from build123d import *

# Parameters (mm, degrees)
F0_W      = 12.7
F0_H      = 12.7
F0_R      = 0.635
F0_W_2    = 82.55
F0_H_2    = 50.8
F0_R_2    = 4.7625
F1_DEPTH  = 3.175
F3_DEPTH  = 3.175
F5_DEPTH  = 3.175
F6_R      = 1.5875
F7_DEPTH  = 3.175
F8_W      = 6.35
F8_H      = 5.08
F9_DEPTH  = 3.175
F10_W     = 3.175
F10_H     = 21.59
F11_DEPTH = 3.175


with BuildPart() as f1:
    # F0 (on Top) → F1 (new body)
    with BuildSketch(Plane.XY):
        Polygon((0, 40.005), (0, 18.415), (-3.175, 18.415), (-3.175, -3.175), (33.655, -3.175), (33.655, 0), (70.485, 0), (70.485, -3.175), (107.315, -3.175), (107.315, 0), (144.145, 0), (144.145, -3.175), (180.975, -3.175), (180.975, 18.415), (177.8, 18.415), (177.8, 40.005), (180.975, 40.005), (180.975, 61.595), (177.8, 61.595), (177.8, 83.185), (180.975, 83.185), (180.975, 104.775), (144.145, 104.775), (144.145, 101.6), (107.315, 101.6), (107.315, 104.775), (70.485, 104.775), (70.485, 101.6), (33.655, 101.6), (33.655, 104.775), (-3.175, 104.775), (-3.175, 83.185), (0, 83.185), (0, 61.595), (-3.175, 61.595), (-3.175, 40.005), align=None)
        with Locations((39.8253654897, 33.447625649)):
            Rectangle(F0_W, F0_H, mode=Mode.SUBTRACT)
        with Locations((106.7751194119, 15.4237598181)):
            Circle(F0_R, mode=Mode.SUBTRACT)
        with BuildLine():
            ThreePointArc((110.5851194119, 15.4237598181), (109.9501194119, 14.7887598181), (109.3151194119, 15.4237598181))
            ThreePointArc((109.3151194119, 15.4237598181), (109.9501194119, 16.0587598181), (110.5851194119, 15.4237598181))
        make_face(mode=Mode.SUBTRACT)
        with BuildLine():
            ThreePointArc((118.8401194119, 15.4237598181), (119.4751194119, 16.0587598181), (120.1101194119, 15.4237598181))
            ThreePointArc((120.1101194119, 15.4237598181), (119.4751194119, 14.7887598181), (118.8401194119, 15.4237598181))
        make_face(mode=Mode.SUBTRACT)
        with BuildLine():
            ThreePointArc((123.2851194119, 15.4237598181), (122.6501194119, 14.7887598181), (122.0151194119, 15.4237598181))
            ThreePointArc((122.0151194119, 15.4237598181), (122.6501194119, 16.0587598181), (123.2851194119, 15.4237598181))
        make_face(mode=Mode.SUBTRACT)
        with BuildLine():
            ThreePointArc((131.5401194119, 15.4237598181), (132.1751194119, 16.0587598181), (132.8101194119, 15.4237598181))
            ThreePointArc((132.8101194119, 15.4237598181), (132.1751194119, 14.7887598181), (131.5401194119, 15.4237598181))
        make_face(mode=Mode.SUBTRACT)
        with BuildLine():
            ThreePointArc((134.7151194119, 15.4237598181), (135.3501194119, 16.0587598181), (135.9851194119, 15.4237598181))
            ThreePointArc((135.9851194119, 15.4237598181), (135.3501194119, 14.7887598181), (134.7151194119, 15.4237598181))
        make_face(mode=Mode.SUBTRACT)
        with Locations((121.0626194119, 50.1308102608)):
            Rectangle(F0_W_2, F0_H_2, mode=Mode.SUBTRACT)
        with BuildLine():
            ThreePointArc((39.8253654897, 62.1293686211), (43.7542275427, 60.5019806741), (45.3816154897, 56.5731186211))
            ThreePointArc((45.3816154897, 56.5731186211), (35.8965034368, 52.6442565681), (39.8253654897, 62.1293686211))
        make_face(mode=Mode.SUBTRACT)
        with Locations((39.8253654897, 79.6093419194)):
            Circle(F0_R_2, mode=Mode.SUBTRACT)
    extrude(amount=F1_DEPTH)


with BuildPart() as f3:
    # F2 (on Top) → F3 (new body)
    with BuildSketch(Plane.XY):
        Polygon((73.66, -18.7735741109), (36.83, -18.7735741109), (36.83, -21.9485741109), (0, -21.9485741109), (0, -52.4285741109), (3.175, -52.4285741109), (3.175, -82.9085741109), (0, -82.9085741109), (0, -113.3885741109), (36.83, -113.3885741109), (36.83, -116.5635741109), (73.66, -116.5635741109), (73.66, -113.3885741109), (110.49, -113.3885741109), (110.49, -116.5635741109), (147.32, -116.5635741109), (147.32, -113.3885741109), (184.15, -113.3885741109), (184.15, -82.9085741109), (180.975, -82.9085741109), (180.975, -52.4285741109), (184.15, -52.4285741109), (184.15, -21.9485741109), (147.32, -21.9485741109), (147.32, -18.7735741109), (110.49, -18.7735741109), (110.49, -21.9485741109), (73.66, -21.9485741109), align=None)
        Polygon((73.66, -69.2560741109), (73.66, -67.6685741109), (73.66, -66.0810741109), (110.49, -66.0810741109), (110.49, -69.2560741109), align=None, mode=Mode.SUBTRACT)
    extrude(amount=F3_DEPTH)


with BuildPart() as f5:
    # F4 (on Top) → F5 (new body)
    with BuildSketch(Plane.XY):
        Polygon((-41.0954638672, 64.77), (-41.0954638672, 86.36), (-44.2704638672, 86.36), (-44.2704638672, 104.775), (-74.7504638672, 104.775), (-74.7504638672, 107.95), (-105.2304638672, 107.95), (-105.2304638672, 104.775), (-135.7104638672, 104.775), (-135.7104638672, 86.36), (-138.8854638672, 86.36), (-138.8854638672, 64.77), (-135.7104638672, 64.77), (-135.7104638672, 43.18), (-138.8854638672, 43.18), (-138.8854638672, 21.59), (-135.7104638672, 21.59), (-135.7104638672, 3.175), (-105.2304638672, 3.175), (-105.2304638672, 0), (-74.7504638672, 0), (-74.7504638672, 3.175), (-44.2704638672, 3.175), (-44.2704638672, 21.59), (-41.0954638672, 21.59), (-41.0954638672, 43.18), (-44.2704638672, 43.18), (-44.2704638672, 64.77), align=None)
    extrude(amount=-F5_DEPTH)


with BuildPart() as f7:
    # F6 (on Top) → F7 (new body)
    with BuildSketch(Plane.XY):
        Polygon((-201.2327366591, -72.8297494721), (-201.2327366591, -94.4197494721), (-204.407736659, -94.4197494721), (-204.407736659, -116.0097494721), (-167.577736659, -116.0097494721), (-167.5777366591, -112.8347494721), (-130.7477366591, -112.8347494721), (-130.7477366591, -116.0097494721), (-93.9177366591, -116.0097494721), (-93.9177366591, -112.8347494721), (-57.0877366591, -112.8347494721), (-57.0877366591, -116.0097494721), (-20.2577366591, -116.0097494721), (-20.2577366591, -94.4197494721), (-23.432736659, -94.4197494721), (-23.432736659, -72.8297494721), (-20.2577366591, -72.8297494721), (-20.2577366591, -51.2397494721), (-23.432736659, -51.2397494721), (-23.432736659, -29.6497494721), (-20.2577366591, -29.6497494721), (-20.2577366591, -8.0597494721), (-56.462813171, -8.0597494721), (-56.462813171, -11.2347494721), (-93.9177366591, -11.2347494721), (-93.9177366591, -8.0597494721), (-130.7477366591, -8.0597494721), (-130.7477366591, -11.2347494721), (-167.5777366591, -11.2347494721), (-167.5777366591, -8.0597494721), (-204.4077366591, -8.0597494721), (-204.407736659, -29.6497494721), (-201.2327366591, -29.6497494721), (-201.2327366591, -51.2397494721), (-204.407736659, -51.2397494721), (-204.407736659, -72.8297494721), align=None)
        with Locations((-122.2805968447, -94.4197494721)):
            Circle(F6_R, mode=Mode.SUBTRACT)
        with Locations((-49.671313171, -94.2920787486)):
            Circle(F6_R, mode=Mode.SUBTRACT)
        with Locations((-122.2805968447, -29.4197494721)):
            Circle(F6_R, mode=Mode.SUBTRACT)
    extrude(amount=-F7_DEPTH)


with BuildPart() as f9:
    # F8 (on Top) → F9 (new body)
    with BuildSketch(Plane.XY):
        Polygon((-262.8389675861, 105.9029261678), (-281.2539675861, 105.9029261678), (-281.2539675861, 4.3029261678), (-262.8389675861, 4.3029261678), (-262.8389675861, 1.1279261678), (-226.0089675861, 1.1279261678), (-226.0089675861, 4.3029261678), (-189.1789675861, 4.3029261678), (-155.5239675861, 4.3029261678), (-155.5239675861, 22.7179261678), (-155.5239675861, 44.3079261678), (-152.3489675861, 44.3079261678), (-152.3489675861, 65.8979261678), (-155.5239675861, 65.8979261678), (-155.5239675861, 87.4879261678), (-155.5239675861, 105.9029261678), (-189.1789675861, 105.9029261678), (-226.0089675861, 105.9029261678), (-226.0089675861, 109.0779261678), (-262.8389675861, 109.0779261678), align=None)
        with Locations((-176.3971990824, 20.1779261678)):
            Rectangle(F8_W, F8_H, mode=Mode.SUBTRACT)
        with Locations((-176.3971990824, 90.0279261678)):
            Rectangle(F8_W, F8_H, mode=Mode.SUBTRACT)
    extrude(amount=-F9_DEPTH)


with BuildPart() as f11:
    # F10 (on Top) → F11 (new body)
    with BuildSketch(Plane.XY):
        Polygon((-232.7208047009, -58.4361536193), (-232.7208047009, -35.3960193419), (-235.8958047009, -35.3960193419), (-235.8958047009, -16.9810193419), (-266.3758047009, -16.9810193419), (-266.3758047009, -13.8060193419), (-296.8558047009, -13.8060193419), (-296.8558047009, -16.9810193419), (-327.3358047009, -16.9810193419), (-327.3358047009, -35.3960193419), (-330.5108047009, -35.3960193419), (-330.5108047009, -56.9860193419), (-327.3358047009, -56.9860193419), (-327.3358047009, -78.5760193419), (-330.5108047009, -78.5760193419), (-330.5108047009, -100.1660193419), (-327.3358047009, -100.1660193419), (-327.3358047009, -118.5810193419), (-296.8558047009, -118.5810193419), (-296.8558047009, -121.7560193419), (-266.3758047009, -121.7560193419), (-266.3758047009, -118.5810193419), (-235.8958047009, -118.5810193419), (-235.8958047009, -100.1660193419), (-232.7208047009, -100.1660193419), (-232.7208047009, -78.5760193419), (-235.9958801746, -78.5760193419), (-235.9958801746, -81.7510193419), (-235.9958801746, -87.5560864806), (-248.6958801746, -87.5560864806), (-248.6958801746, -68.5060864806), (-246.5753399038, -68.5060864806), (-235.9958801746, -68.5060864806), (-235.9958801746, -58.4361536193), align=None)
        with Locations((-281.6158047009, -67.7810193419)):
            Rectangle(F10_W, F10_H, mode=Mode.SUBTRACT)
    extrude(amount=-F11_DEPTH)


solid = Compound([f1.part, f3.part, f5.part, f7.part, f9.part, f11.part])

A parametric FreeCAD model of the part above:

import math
import FreeCAD as App
import Part
import Sketcher
from FreeCAD import Vector
Q = App.Units.Quantity


def add_polygon(sketch, points):
    """Adds a closed chain of lines whose ends are joined by coincident constraints."""
    first, n = sketch.GeometryCount, len(points)
    for a, b in zip(points, points[1:] + points[:1]):
        sketch.addGeometry(Part.LineSegment(App.Vector(*a, 0), App.Vector(*b, 0)), False)
    for i in range(n):
        sketch.addConstraint(Sketcher.Constraint("Coincident", first + i, 2, first + (i + 1) % n, 1))

doc = App.newDocument("Part")
params = doc.addObject("Spreadsheet::Sheet", "Params")
for row, (alias, value) in enumerate([
    ("sketch1_diameter", "0.05 in"),
    ("sketch1_height", "2 in"),
    ("sketch1_diameter2", "0.375 in"),
    ("sketch1_width", "0.5 in"),
    ("sketch1_radius", "0.21875 in"),
    ("pad1_length", "0.125 in"),
    ("sketch2_height", "1.2 in"),
    ("sketch2_width", "1.45 in"),
    ("sketch2_width2", "0.125 in"),
    ("pad2_length", "0.125 in"),
    ("sketch3_width", "1.2 in"),
    ("sketch3_height", "0.85 in"),
    ("sketch3_width2", "0.125 in"),
    ("pad3_length", "0.125 in"),
    ("sketch4_diameter", "0.125 in"),
    ("sketch4_width", "1.45 in"),
    ("sketch4_height", "0.85 in"),
    ("sketch4_width2", "0.125 in"),
    ("pad4_length", "0.125 in"),
    ("sketch5_height", "4 in"),
    ("sketch5_height2", "0.2 in"),
    ("sketch5_width", "1.45 in"),
    ("sketch5_width2", "0.25 in"),
    ("sketch5_height3", "0.85 in"),
    ("pad5_length", "0.125 in"),
    ("sketch6_width", "1.2 in"),
    ("sketch6_width2", "0.5 in"),
    ("sketch6_height", "0.85 in"),
    ("sketch6_height2", "0.75 in"),
    ("sketch6_width3", "0.125 in"),
    ("pad6_length", "0.125 in"),
], start=1):
    params.set(f"A{row}", alias)
    params.set(f"B{row}", "=" + value)
    params.setAlias(f"B{row}", alias)

body = doc.addObject("PartDesign::Body", "Body")

# Sketch on XY plane
sketch1 = body.newObject("Sketcher::SketchObject", "Sketch")
sketch1.AttachmentSupport = (doc.getObject("XY_Plane"), [""])
sketch1.MapMode = "FlatFace"
add_polygon(sketch1, [(0, 40), (0, 18.4), (-3.2, 18.4), (-3.2, -3.2), (33.7, -3.2), (33.7, 0), (70.5, 0), (70.5, -3.2), (107.3, -3.2), (107.3, 0), (144.1, 0), (144.1, -3.2), (181, -3.2), (181, 18.4), (177.8, 18.4), (177.8, 40), (181, 40), (181, 61.6), (177.8, 61.6), (177.8, 83.2), (181, 83.2), (181, 104.8), (144.1, 104.8), (144.1, 101.6), (107.3, 101.6), (107.3, 104.8), (70.5, 104.8), (70.5, 101.6), (33.7, 101.6), (33.7, 104.8), (-3.2, 104.8), (-3.2, 83.2), (0, 83.2), (0, 61.6), (-3.2, 61.6), (-3.2, 40)])  # lines 0-35
add_polygon(sketch1, [(46.2, 27.1), (33.5, 27.1), (33.5, 39.8), (46.2, 39.8)])  # lines 36-39
sketch1.addGeometry(Part.Circle(Vector(106.8, 15.4, 0), Vector(0, 0, 1), 0.6), False)  # 40
sketch1.addGeometry(Part.Circle(Vector(110, 15.4, 0), Vector(0, 0, 1), 0.6), False)  # 41
sketch1.addGeometry(Part.Circle(Vector(119.5, 15.4, 0), Vector(0, 0, 1), 0.6), False)  # 42
sketch1.addGeometry(Part.Circle(Vector(122.7, 15.4, 0), Vector(0, 0, 1), 0.6), False)  # 43
sketch1.addGeometry(Part.Circle(Vector(132.2, 15.4, 0), Vector(0, 0, 1), 0.6), False)  # 44
sketch1.addGeometry(Part.Circle(Vector(135.4, 15.4, 0), Vector(0, 0, 1), 0.6), False)  # 45
sketch1.addGeometry(Part.ArcOfCircle(Part.Circle(Vector(39.8, 56.6, 0), Vector(0, 0, 1), 5.6), math.radians(90), math.radians(360)), False)  # 46
sketch1.addGeometry(Part.ArcOfCircle(Part.Circle(Vector(39.8, 56.6, 0), Vector(0, 0, 1), 5.6), math.radians(0), math.radians(90)), False)  # 47
sketch1.addGeometry(Part.Circle(Vector(39.8, 79.6, 0), Vector(0, 0, 1), 4.8), False)  # 48
add_polygon(sketch1, [(162.3, 24.7), (79.8, 24.7), (79.8, 75.5), (162.3, 75.5)])  # lines 49-52
sketch1.addConstraint(Sketcher.Constraint("Tangent", 46, 1, 47, 2))
sketch1.addConstraint(Sketcher.Constraint("Coincident", 47, 1, 46, 2))
sketch1.addConstraint(Sketcher.Constraint("Vertical", 0))
sketch1.addConstraint(Sketcher.Constraint("Horizontal", 1))
sketch1.addConstraint(Sketcher.Constraint("Vertical", 2))
sketch1.addConstraint(Sketcher.Constraint("Horizontal", 3))
sketch1.addConstraint(Sketcher.Constraint("Vertical", 4))
sketch1.addConstraint(Sketcher.Constraint("Horizontal", 5))
sketch1.addConstraint(Sketcher.Constraint("Vertical", 6))
sketch1.addConstraint(Sketcher.Constraint("Horizontal", 7))
sketch1.addConstraint(Sketcher.Constraint("Vertical", 8))
sketch1.addConstraint(Sketcher.Constraint("Horizontal", 9))
sketch1.addConstraint(Sketcher.Constraint("Vertical", 10))
sketch1.addConstraint(Sketcher.Constraint("Horizontal", 11))
sketch1.addConstraint(Sketcher.Constraint("Vertical", 12))
sketch1.addConstraint(Sketcher.Constraint("Horizontal", 13))
sketch1.addConstraint(Sketcher.Constraint("Vertical", 14))
sketch1.addConstraint(Sketcher.Constraint("Horizontal", 15))
sketch1.addConstraint(Sketcher.Constraint("Vertical", 16))
sketch1.addConstraint(Sketcher.Constraint("Horizontal", 17))
sketch1.addConstraint(Sketcher.Constraint("Vertical", 18))
sketch1.addConstraint(Sketcher.Constraint("Horizontal", 19))
sketch1.addConstraint(Sketcher.Constraint("Vertical", 20))
sketch1.addConstraint(Sketcher.Constraint("Horizontal", 21))
sketch1.addConstraint(Sketcher.Constraint("Vertical", 22))
sketch1.addConstraint(Sketcher.Constraint("Horizontal", 23))
sketch1.addConstraint(Sketcher.Constraint("Vertical", 24))
sketch1.addConstraint(Sketcher.Constraint("Horizontal", 25))
sketch1.addConstraint(Sketcher.Constraint("Vertical", 26))
sketch1.addConstraint(Sketcher.Constraint("Horizontal", 27))
sketch1.addConstraint(Sketcher.Constraint("Vertical", 28))
sketch1.addConstraint(Sketcher.Constraint("Horizontal", 29))
sketch1.addConstraint(Sketcher.Constraint("Vertical", 30))
sketch1.addConstraint(Sketcher.Constraint("Horizontal", 31))
sketch1.addConstraint(Sketcher.Constraint("Vertical", 32))
sketch1.addConstraint(Sketcher.Constraint("Horizontal", 33))
sketch1.addConstraint(Sketcher.Constraint("Vertical", 34))
sketch1.addConstraint(Sketcher.Constraint("Horizontal", 35))
sketch1.addConstraint(Sketcher.Constraint("Horizontal", 36))
sketch1.addConstraint(Sketcher.Constraint("Vertical", 37))
sketch1.addConstraint(Sketcher.Constraint("Horizontal", 38))
sketch1.addConstraint(Sketcher.Constraint("Vertical", 39))
sketch1.addConstraint(Sketcher.Constraint("Horizontal", 49))
sketch1.addConstraint(Sketcher.Constraint("Vertical", 50))
sketch1.addConstraint(Sketcher.Constraint("Horizontal", 51))
sketch1.addConstraint(Sketcher.Constraint("Vertical", 52))
sketch1.addConstraint(Sketcher.Constraint("Equal", 40, 41))
sketch1.addConstraint(Sketcher.Constraint("Equal", 41, 42))
sketch1.addConstraint(Sketcher.Constraint("Equal", 42, 43))
sketch1.addConstraint(Sketcher.Constraint("Equal", 43, 44))
sketch1.addConstraint(Sketcher.Constraint("Equal", 44, 45))
sketch1.addConstraint(Sketcher.Constraint("PointOnObject", 0, 2, -2))
sketch1.addConstraint(Sketcher.Constraint("PointOnObject", 4, 2, -1))
sketch1.addConstraint(Sketcher.Constraint("PointOnObject", 8, 2, -1))
sketch1.addConstraint(Sketcher.Constraint("PointOnObject", 31, 2, -2))
sketch1.addConstraint(Sketcher.Constraint("Horizontal", 40, 3, 41, 3))
sketch1.addConstraint(Sketcher.Constraint("Horizontal", 41, 3, 42, 3))
sketch1.addConstraint(Sketcher.Constraint("Horizontal", 42, 3, 43, 3))
sketch1.addConstraint(Sketcher.Constraint("Horizontal", 43, 3, 44, 3))
sketch1.addConstraint(Sketcher.Constraint("Horizontal", 44, 3, 45, 3))
sketch1.addConstraint(Sketcher.Constraint("Horizontal", 3, 2, 6, 2))
sketch1.addConstraint(Sketcher.Constraint("Horizontal", 7, 2, 10, 2))
sketch1.addConstraint(Sketcher.Constraint("Horizontal", 1, 2, 12, 2))
sketch1.addConstraint(Sketcher.Constraint("Horizontal", 21, 2, 24, 2))
sketch1.addConstraint(Sketcher.Constraint("Horizontal", 23, 2, 26, 2))
sketch1.addConstraint(Sketcher.Constraint("Horizontal", 25, 2, 28, 2))
sketch1.addConstraint(Sketcher.Constraint("Horizontal", 19, 2, 30, 2))
sketch1.addConstraint(Sketcher.Constraint("Horizontal", 17, 2, 32, 2))
sketch1.addConstraint(Sketcher.Constraint("Horizontal", 15, 2, 34, 2))
sketch1.addConstraint(Sketcher.Constraint("Horizontal", 46, 3, 47, 1))
sketch1.addConstraint(Sketcher.Constraint("Vertical", 47, 3, 48, 3))
sketch1.addConstraint(Sketcher.Constraint("Vertical", 12, 2, 15, 2))
sketch1.addConstraint(Sketcher.Constraint("Vertical", 14, 2, 17, 2))
sketch1.addConstraint(Sketcher.Constraint("Vertical", 16, 2, 19, 2))
sketch1.addConstraint(Sketcher.Constraint("Vertical", 10, 2, 21, 2))
sketch1.addConstraint(Sketcher.Constraint("Vertical", 8, 2, 23, 2))
sketch1.addConstraint(Sketcher.Constraint("Vertical", 6, 2, 25, 2))
sketch1.addConstraint(Sketcher.Constraint("Vertical", 4, 2, 27, 2))
sketch1.addConstraint(Sketcher.Constraint("Vertical", 2, 2, 29, 2))
sketch1.addConstraint(Sketcher.Constraint("Vertical", 30, 2, 33, 2))
sketch1.addConstraint(Sketcher.Constraint("Vertical", 48, 3, 46, 1))
sketch1.addConstraint(Sketcher.Constraint("Equal", 3, 5))
sketch1.addConstraint(Sketcher.Constraint("Equal", 5, 7))
sketch1.addConstraint(Sketcher.Constraint("Equal", 7, 9))
sketch1.addConstraint(Sketcher.Constraint("Equal", 9, 11))
sketch1.addConstraint(Sketcher.Constraint("Equal", 1, 13))
sketch1.addConstraint(Sketcher.Constraint("Equal", 0, 2))
sketch1.addConstraint(Sketcher.Constraint("Equal", 35, 4))
sketch1.addConstraint(Sketcher.Constraint("Equal", 14, 16))
sketch1.addConstraint(Sketcher.Constraint("Equal", 16, 18))
sketch1.addConstraint(Sketcher.Constraint("Equal", 18, 20))
sketch1.addConstraint(Sketcher.Constraint("Equal", 10, 22))
sketch1.addConstraint(Sketcher.Constraint("Equal", 38, 37))
sketch1.addConstraint(Sketcher.Constraint("Diameter", 40, Q("0.05 in")))
sketch1.addConstraint(Sketcher.Constraint("DistanceY", 50, 1, 50, 2, Q("2 in")))
sketch1.addConstraint(Sketcher.Constraint("Diameter", 48, Q("0.375 in")))
sketch1.addConstraint(Sketcher.Constraint("DistanceX", 36, 2, 36, 1, Q("0.5 in")))
sketch1.addConstraint(Sketcher.Constraint("DistanceX", -1, 1, 13, 2, Q("7 in")))
sketch1.addConstraint(Sketcher.Constraint("DistanceY", -1, 1, 22, 2, Q("4 in")))
sketch1.addConstraint(Sketcher.Constraint("Radius", 46, Q("0.21875 in")))
sketch1.addConstraint(Sketcher.Constraint("DistanceX", 40, 3, 44, 3, Q("1 in")))
sketch1.addConstraint(Sketcher.Constraint("DistanceX", 41, 3, 45, 3, Q("1 in")))
sketch1.addConstraint(Sketcher.Constraint("DistanceX", 3, 1, 3, 2, Q("1.45 in")))
sketch1.addConstraint(Sketcher.Constraint("DistanceX", 49, 2, 49, 1, Q("3.25 in")))
sketch1.addConstraint(Sketcher.Constraint("DistanceX", 40, 3, 42, 3, Q("0.5 in")))
sketch1.addConstraint(Sketcher.Constraint("DistanceX", 41, 3, 43, 3, Q("0.5 in")))
sketch1.addConstraint(Sketcher.Constraint("DistanceX", 36, 2, 46, 3, Q("0.25 in")))
sketch1.addConstraint(Sketcher.Constraint("DistanceX", 40, 3, 41, 3, Q("0.125 in")))
sketch1.addConstraint(Sketcher.Constraint("DistanceX", 49, 2, 40, 3, Q("1.0625 in")))
sketch1.addConstraint(Sketcher.Constraint("DistanceX", -1, 1, 40, 3, Q("106.775119 mm")))
sketch1.addConstraint(Sketcher.Constraint("DistanceY", -1, 1, 40, 3, Q("15.42376 mm")))
sketch1.addConstraint(Sketcher.Constraint("DistanceY", -1, 1, 46, 3, Q("56.573119 mm")))
sketch1.addConstraint(Sketcher.Constraint("DistanceY", -1, 1, 48, 3, Q("79.609342 mm")))
sketch1.addConstraint(Sketcher.Constraint("DistanceY", -1, 1, 49, 2, Q("24.73081 mm")))
sketch1.addConstraint(Sketcher.Constraint("DistanceX", -1, 1, 46, 3, Q("39.825365 mm")))
sketch1.addConstraint(Sketcher.Constraint("DistanceY", -1, 1, 36, 2, Q("27.097626 mm")))
sketch1.setExpression("Constraints[137]", "Params.sketch1_diameter")
sketch1.setExpression("Constraints[138]", "Params.sketch1_height")
sketch1.setExpression("Constraints[139]", "Params.sketch1_diameter2")
sketch1.setExpression("Constraints[140]", "Params.sketch1_width")
sketch1.setExpression("Constraints[143]", "Params.sketch1_radius")
pad1 = body.newObject("PartDesign::Pad", "Pad")
pad1.Profile = sketch1
pad1.setExpression("Length", "Params.pad1_length")
body2 = doc.addObject("PartDesign::Body", "Body001")

# Sketch on XY plane
sketch2 = body2.newObject("Sketcher::SketchObject", "Sketch001")
sketch2.AttachmentSupport = (doc.getObject("XY_Plane001"), [""])
sketch2.MapMode = "FlatFace"
add_polygon(sketch2, [(73.7, -18.8), (36.8, -18.8), (36.8, -21.9), (0, -21.9), (0, -52.4), (3.2, -52.4), (3.2, -82.9), (0, -82.9), (0, -113.4), (36.8, -113.4), (36.8, -116.6), (73.7, -116.6), (73.7, -113.4), (110.5, -113.4), (110.5, -116.6), (147.3, -116.6), (147.3, -113.4), (184.2, -113.4), (184.2, -82.9), (181, -82.9), (181, -52.4), (184.2, -52.4), (184.2, -21.9), (147.3, -21.9), (147.3, -18.8), (110.5, -18.8), (110.5, -21.9), (73.7, -21.9)])  # lines 0-27
add_polygon(sketch2, [(110.5, -69.3), (73.7, -69.3), (73.7, -66.1), (110.5, -66.1)])  # lines 28-31
sketch2.addConstraint(Sketcher.Constraint("Horizontal", 0))
sketch2.addConstraint(Sketcher.Constraint("Vertical", 1))
sketch2.addConstraint(Sketcher.Constraint("Horizontal", 2))
sketch2.addConstraint(Sketcher.Constraint("Vertical", 3))
sketch2.addConstraint(Sketcher.Constraint("Horizontal", 4))
sketch2.addConstraint(Sketcher.Constraint("Vertical", 5))
sketch2.addConstraint(Sketcher.Constraint("Horizontal", 6))
sketch2.addConstraint(Sketcher.Constraint("Vertical", 7))
sketch2.addConstraint(Sketcher.Constraint("Horizontal", 8))
sketch2.addConstraint(Sketcher.Constraint("Vertical", 9))
sketch2.addConstraint(Sketcher.Constraint("Horizontal", 10))
sketch2.addConstraint(Sketcher.Constraint("Vertical", 11))
sketch2.addConstraint(Sketcher.Constraint("Horizontal", 12))
sketch2.addConstraint(Sketcher.Constraint("Vertical", 13))
sketch2.addConstraint(Sketcher.Constraint("Horizontal", 14))
sketch2.addConstraint(Sketcher.Constraint("Vertical", 15))
sketch2.addConstraint(Sketcher.Constraint("Horizontal", 16))
sketch2.addConstraint(Sketcher.Constraint("Vertical", 17))
sketch2.addConstraint(Sketcher.Constraint("Horizontal", 18))
sketch2.addConstraint(Sketcher.Constraint("Vertical", 19))
sketch2.addConstraint(Sketcher.Constraint("Horizontal", 20))
sketch2.addConstraint(Sketcher.Constraint("Vertical", 21))
sketch2.addConstraint(Sketcher.Constraint("Horizontal", 22))
sketch2.addConstraint(Sketcher.Constraint("Vertical", 23))
sketch2.addConstraint(Sketcher.Constraint("Horizontal", 24))
sketch2.addConstraint(Sketcher.Constraint("Vertical", 25))
sketch2.addConstraint(Sketcher.Constraint("Horizontal", 26))
sketch2.addConstraint(Sketcher.Constraint("Vertical", 27))
sketch2.addConstraint(Sketcher.Constraint("Horizontal", 28))
sketch2.addConstraint(Sketcher.Constraint("Vertical", 29))
sketch2.addConstraint(Sketcher.Constraint("Horizontal", 30))
sketch2.addConstraint(Sketcher.Constraint("Vertical", 31))
sketch2.addConstraint(Sketcher.Constraint("PointOnObject", 2, 2, -2))
sketch2.addConstraint(Sketcher.Constraint("PointOnObject", 6, 2, -2))
sketch2.addConstraint(Sketcher.Constraint("Horizontal", 8, 2, 11, 2))
sketch2.addConstraint(Sketcher.Constraint("Horizontal", 10, 2, 13, 2))
sketch2.addConstraint(Sketcher.Constraint("Horizontal", 12, 2, 15, 2))
sketch2.addConstraint(Sketcher.Constraint("Horizontal", 6, 2, 17, 2))
sketch2.addConstraint(Sketcher.Constraint("Horizontal", 4, 2, 19, 2))
sketch2.addConstraint(Sketcher.Constraint("Horizontal", 2, 2, 21, 2))
sketch2.addConstraint(Sketcher.Constraint("Horizontal", 0, 2, 23, 2))
sketch2.addConstraint(Sketcher.Constraint("Horizontal", 22, 2, 25, 2))
sketch2.addConstraint(Sketcher.Constraint("Vertical", 1, 2, 8, 2))
sketch2.addConstraint(Sketcher.Constraint("Vertical", 17, 2, 20, 2))
sketch2.addConstraint(Sketcher.Constraint("Vertical", 15, 2, 22, 2))
sketch2.addConstraint(Sketcher.Constraint("Vertical", 13, 2, 24, 2))
sketch2.addConstraint(Sketcher.Constraint("Vertical", 11, 2, 26, 2))
sketch2.addConstraint(Sketcher.Constraint("Vertical", 27, 2, 28, 2))
sketch2.addConstraint(Sketcher.Constraint("Vertical", 25, 2, 30, 2))
sketch2.addConstraint(Sketcher.Constraint("Equal", 0, 2))
sketch2.addConstraint(Sketcher.Constraint("Equal", 10, 12))
sketch2.addConstraint(Sketcher.Constraint("Equal", 12, 14))
sketch2.addConstraint(Sketcher.Constraint("Equal", 14, 16))
sketch2.addConstraint(Sketcher.Constraint("Equal", 6, 18))
sketch2.addConstraint(Sketcher.Constraint("Equal", 20, 1))
sketch2.addConstraint(Sketcher.Constraint("Equal", 3, 5))
sketch2.addConstraint(Sketcher.Constraint("Equal", 5, 7))
sketch2.addConstraint(Sketcher.Constraint("Equal", 1, 9))
sketch2.addConstraint(Sketcher.Constraint("Equal", 27, 29))
sketch2.addConstraint(Sketcher.Constraint("DistanceY", 3, 2, 3, 1, Q("1.2 in")))
sketch2.addConstraint(Sketcher.Constraint("DistanceX", 0, 2, 0, 1, Q("1.45 in")))
sketch2.addConstraint(Sketcher.Constraint("DistanceX", 4, 1, 4, 2, Q("0.125 in")))
sketch2.addConstraint(Sketcher.Constraint("DistanceY", 11, 2, 28, 2, Q("1.7375 in")))
sketch2.addConstraint(Sketcher.Constraint("DistanceY", 0, 2, -1, 1, Q("18.773574 mm")))
sketch2.setExpression("Constraints[91]", "Params.sketch2_height")
sketch2.setExpression("Constraints[92]", "Params.sketch2_width")
sketch2.setExpression("Constraints[93]", "Params.sketch2_width2")
pad2 = body2.newObject("PartDesign::Pad", "Pad001")
pad2.Profile = sketch2
pad2.setExpression("Length", "Params.pad2_length")
body3 = doc.addObject("PartDesign::Body", "Body002")

# Sketch on XY plane
sketch3 = body3.newObject("Sketcher::SketchObject", "Sketch002")
sketch3.AttachmentSupport = (doc.getObject("XY_Plane002"), [""])
sketch3.MapMode = "FlatFace"
add_polygon(sketch3, [(-41.1, 64.8), (-41.1, 86.4), (-44.3, 86.4), (-44.3, 104.8), (-74.8, 104.8), (-74.8, 108), (-105.2, 108), (-105.2, 104.8), (-135.7, 104.8), (-135.7, 86.4), (-138.9, 86.4), (-138.9, 64.8), (-135.7, 64.8), (-135.7, 43.2), (-138.9, 43.2), (-138.9, 21.6), (-135.7, 21.6), (-135.7, 3.2), (-105.2, 3.2), (-105.2, 0), (-74.8, 0), (-74.8, 3.2), (-44.3, 3.2), (-44.3, 21.6), (-41.1, 21.6), (-41.1, 43.2), (-44.3, 43.2), (-44.3, 64.8)])  # lines 0-27
sketch3.addConstraint(Sketcher.Constraint("Vertical", 0))
sketch3.addConstraint(Sketcher.Constraint("Horizontal", 1))
sketch3.addConstraint(Sketcher.Constraint("Vertical", 2))
sketch3.addConstraint(Sketcher.Constraint("Horizontal", 3))
sketch3.addConstraint(Sketcher.Constraint("Vertical", 4))
sketch3.addConstraint(Sketcher.Constraint("Horizontal", 5))
sketch3.addConstraint(Sketcher.Constraint("Vertical", 6))
sketch3.addConstraint(Sketcher.Constraint("Horizontal", 7))
sketch3.addConstraint(Sketcher.Constraint("Vertical", 8))
sketch3.addConstraint(Sketcher.Constraint("Horizontal", 9))
sketch3.addConstraint(Sketcher.Constraint("Vertical", 10))
sketch3.addConstraint(Sketcher.Constraint("Horizontal", 11))
sketch3.addConstraint(Sketcher.Constraint("Vertical", 12))
sketch3.addConstraint(Sketcher.Constraint("Horizontal", 13))
sketch3.addConstraint(Sketcher.Constraint("Vertical", 14))
sketch3.addConstraint(Sketcher.Constraint("Horizontal", 15))
sketch3.addConstraint(Sketcher.Constraint("Vertical", 16))
sketch3.addConstraint(Sketcher.Constraint("Horizontal", 17))
sketch3.addConstraint(Sketcher.Constraint("Vertical", 18))
sketch3.addConstraint(Sketcher.Constraint("Horizontal", 19))
sketch3.addConstraint(Sketcher.Constraint("Vertical", 20))
sketch3.addConstraint(Sketcher.Constraint("Horizontal", 21))
sketch3.addConstraint(Sketcher.Constraint("Vertical", 22))
sketch3.addConstraint(Sketcher.Constraint("Horizontal", 23))
sketch3.addConstraint(Sketcher.Constraint("Vertical", 24))
sketch3.addConstraint(Sketcher.Constraint("Horizontal", 25))
sketch3.addConstraint(Sketcher.Constraint("Vertical", 26))
sketch3.addConstraint(Sketcher.Constraint("Horizontal", 27))
sketch3.addConstraint(Sketcher.Constraint("PointOnObject", 18, 2, -1))
sketch3.addConstraint(Sketcher.Constraint("Horizontal", 3, 2, 6, 2))
sketch3.addConstraint(Sketcher.Constraint("Horizontal", 1, 2, 8, 2))
sketch3.addConstraint(Sketcher.Constraint("Horizontal", 17, 2, 20, 2))
sketch3.addConstraint(Sketcher.Constraint("Horizontal", 15, 2, 22, 2))
sketch3.addConstraint(Sketcher.Constraint("Horizontal", 13, 2, 24, 2))
sketch3.addConstraint(Sketcher.Constraint("Horizontal", 11, 2, 26, 2))
sketch3.addConstraint(Sketcher.Constraint("Vertical", 8, 2, 11, 2))
sketch3.addConstraint(Sketcher.Constraint("Vertical", 10, 2, 13, 2))
sketch3.addConstraint(Sketcher.Constraint("Vertical", 12, 2, 15, 2))
sketch3.addConstraint(Sketcher.Constraint("Vertical", 6, 2, 17, 2))
sketch3.addConstraint(Sketcher.Constraint("Vertical", 4, 2, 19, 2))
sketch3.addConstraint(Sketcher.Constraint("Vertical", 2, 2, 21, 2))
sketch3.addConstraint(Sketcher.Constraint("Vertical", 0, 2, 23, 2))
sketch3.addConstraint(Sketcher.Constraint("Vertical", 22, 2, 25, 2))
sketch3.addConstraint(Sketcher.Constraint("Equal", 3, 5))
sketch3.addConstraint(Sketcher.Constraint("Equal", 5, 7))
sketch3.addConstraint(Sketcher.Constraint("Equal", 1, 9))
sketch3.addConstraint(Sketcher.Constraint("Equal", 27, 4))
sketch3.addConstraint(Sketcher.Constraint("Equal", 10, 12))
sketch3.addConstraint(Sketcher.Constraint("Equal", 12, 14))
sketch3.addConstraint(Sketcher.Constraint("Equal", 8, 16))
sketch3.addConstraint(Sketcher.Constraint("Equal", 6, 18))
sketch3.addConstraint(Sketcher.Constraint("DistanceX", 3, 2, 3, 1, Q("1.2 in")))
sketch3.addConstraint(Sketcher.Constraint("DistanceY", 0, 1, 0, 2, Q("0.85 in")))
sketch3.addConstraint(Sketcher.Constraint("DistanceY", -1, 1, 0, 2, Q("3.4 in")))
sketch3.addConstraint(Sketcher.Constraint("DistanceX", 1, 2, 1, 1, Q("0.125 in")))
sketch3.addConstraint(Sketcher.Constraint("DistanceX", 0, 2, -1, 1, Q("41.095464 mm")))
sketch3.setExpression("Constraints[79]", "Params.sketch3_width")
sketch3.setExpression("Constraints[80]", "Params.sketch3_height")
sketch3.setExpression("Constraints[82]", "Params.sketch3_width2")
pad3 = body3.newObject("PartDesign::Pad", "Pad002")
pad3.Profile = sketch3
pad3.setExpression("Length", "Params.pad3_length")
pad3.Reversed = True
body4 = doc.addObject("PartDesign::Body", "Body003")

# Sketch on XY plane
sketch4 = body4.newObject("Sketcher::SketchObject", "Sketch003")
sketch4.AttachmentSupport = (doc.getObject("XY_Plane003"), [""])
sketch4.MapMode = "FlatFace"
add_polygon(sketch4, [(-201.2, -72.8), (-201.2, -94.4), (-204.4, -94.4), (-204.4, -116), (-167.6, -116), (-167.6, -112.8), (-130.7, -112.8), (-130.7, -116), (-93.9, -116), (-93.9, -112.8), (-57.1, -112.8), (-57.1, -116), (-20.3, -116), (-20.3, -94.4), (-23.4, -94.4), (-23.4, -72.8), (-20.3, -72.8), (-20.3, -51.2), (-23.4, -51.2), (-23.4, -29.6), (-20.3, -29.6), (-20.3, -8.1), (-56.5, -8.1), (-56.5, -11.2), (-93.9, -11.2), (-93.9, -8.1), (-130.7, -8.1), (-130.7, -11.2), (-167.6, -11.2), (-167.6, -8.1), (-204.4, -8.1), (-204.4, -29.6), (-201.2, -29.6), (-201.2, -51.2), (-204.4, -51.2), (-204.4, -72.8)])  # lines 0-35
sketch4.addGeometry(Part.Circle(Vector(-122.3, -94.4, 0), Vector(0, 0, 1), 1.6), False)  # 36
sketch4.addGeometry(Part.Circle(Vector(-49.7, -94.3, 0), Vector(0, 0, 1), 1.6), False)  # 37
sketch4.addGeometry(Part.Circle(Vector(-122.3, -29.4, 0), Vector(0, 0, 1), 1.6), False)  # 38
sketch4.addConstraint(Sketcher.Constraint("Vertical", 0))
sketch4.addConstraint(Sketcher.Constraint("Horizontal", 1))
sketch4.addConstraint(Sketcher.Constraint("Vertical", 2))
sketch4.addConstraint(Sketcher.Constraint("Horizontal", 3))
sketch4.addConstraint(Sketcher.Constraint("Vertical", 4))
sketch4.addConstraint(Sketcher.Constraint("Horizontal", 5))
sketch4.addConstraint(Sketcher.Constraint("Vertical", 6))
sketch4.addConstraint(Sketcher.Constraint("Horizontal", 7))
sketch4.addConstraint(Sketcher.Constraint("Vertical", 8))
sketch4.addConstraint(Sketcher.Constraint("Horizontal", 9))
sketch4.addConstraint(Sketcher.Constraint("Vertical", 10))
sketch4.addConstraint(Sketcher.Constraint("Horizontal", 11))
sketch4.addConstraint(Sketcher.Constraint("Vertical", 12))
sketch4.addConstraint(Sketcher.Constraint("Horizontal", 13))
sketch4.addConstraint(Sketcher.Constraint("Vertical", 14))
sketch4.addConstraint(Sketcher.Constraint("Horizontal", 15))
sketch4.addConstraint(Sketcher.Constraint("Vertical", 16))
sketch4.addConstraint(Sketcher.Constraint("Horizontal", 17))
sketch4.addConstraint(Sketcher.Constraint("Vertical", 18))
sketch4.addConstraint(Sketcher.Constraint("Horizontal", 19))
sketch4.addConstraint(Sketcher.Constraint("Vertical", 20))
sketch4.addConstraint(Sketcher.Constraint("Horizontal", 21))
sketch4.addConstraint(Sketcher.Constraint("Vertical", 22))
sketch4.addConstraint(Sketcher.Constraint("Horizontal", 23))
sketch4.addConstraint(Sketcher.Constraint("Vertical", 24))
sketch4.addConstraint(Sketcher.Constraint("Horizontal", 25))
sketch4.addConstraint(Sketcher.Constraint("Vertical", 26))
sketch4.addConstraint(Sketcher.Constraint("Horizontal", 27))
sketch4.addConstraint(Sketcher.Constraint("Vertical", 28))
sketch4.addConstraint(Sketcher.Constraint("Horizontal", 29))
sketch4.addConstraint(Sketcher.Constraint("Vertical", 30))
sketch4.addConstraint(Sketcher.Constraint("Horizontal", 31))
sketch4.addConstraint(Sketcher.Constraint("Vertical", 32))
sketch4.addConstraint(Sketcher.Constraint("Horizontal", 33))
sketch4.addConstraint(Sketcher.Constraint("Vertical", 34))
sketch4.addConstraint(Sketcher.Constraint("Horizontal", 35))
sketch4.addConstraint(Sketcher.Constraint("Equal", 36, 37))
sketch4.addConstraint(Sketcher.Constraint("Equal", 37, 38))
sketch4.addConstraint(Sketcher.Constraint("Horizontal", 36, 3, 0, 2))
sketch4.addConstraint(Sketcher.Constraint("Horizontal", 3, 2, 6, 2))
sketch4.addConstraint(Sketcher.Constraint("Horizontal", 5, 2, 8, 2))
sketch4.addConstraint(Sketcher.Constraint("Horizontal", 7, 2, 10, 2))
sketch4.addConstraint(Sketcher.Constraint("Horizontal", 1, 2, 12, 2))
sketch4.addConstraint(Sketcher.Constraint("Horizontal", 21, 2, 24, 2))
sketch4.addConstraint(Sketcher.Constraint("Horizontal", 23, 2, 26, 2))
sketch4.addConstraint(Sketcher.Constraint("Horizontal", 25, 2, 28, 2))
sketch4.addConstraint(Sketcher.Constraint("Horizontal", 19, 2, 30, 2))
sketch4.addConstraint(Sketcher.Constraint("Horizontal", 17, 2, 32, 2))
sketch4.addConstraint(Sketcher.Constraint("Horizontal", 15, 2, 34, 2))
sketch4.addConstraint(Sketcher.Constraint("Vertical", 36, 3, 38, 3))
sketch4.addConstraint(Sketcher.Constraint("Vertical", 12, 2, 15, 2))
sketch4.addConstraint(Sketcher.Constraint("Vertical", 14, 2, 17, 2))
sketch4.addConstraint(Sketcher.Constraint("Vertical", 16, 2, 19, 2))
sketch4.addConstraint(Sketcher.Constraint("Vertical", 8, 2, 23, 2))
sketch4.addConstraint(Sketcher.Constraint("Vertical", 6, 2, 25, 2))
sketch4.addConstraint(Sketcher.Constraint("Vertical", 4, 2, 27, 2))
sketch4.addConstraint(Sketcher.Constraint("Vertical", 2, 2, 29, 2))
sketch4.addConstraint(Sketcher.Constraint("Vertical", 0, 2, 31, 2))
sketch4.addConstraint(Sketcher.Constraint("Vertical", 30, 2, 33, 2))
sketch4.addConstraint(Sketcher.Constraint("Equal", 3, 5))
sketch4.addConstraint(Sketcher.Constraint("Equal", 5, 7))
sketch4.addConstraint(Sketcher.Constraint("Equal", 7, 9))
sketch4.addConstraint(Sketcher.Constraint("Equal", 9, 11))
sketch4.addConstraint(Sketcher.Constraint("Equal", 1, 13))
sketch4.addConstraint(Sketcher.Constraint("Equal", 0, 2))
sketch4.addConstraint(Sketcher.Constraint("Equal", 35, 4))
sketch4.addConstraint(Sketcher.Constraint("Equal", 14, 16))
sketch4.addConstraint(Sketcher.Constraint("Equal", 16, 18))
sketch4.addConstraint(Sketcher.Constraint("Equal", 18, 20))
sketch4.addConstraint(Sketcher.Constraint("Equal", 10, 22))
sketch4.addConstraint(Sketcher.Constraint("Diameter", 36, Q("0.125 in")))
sketch4.addConstraint(Sketcher.Constraint("DistanceX", 3, 1, 3, 2, Q("1.45 in")))
sketch4.addConstraint(Sketcher.Constraint("DistanceY", 0, 2, 0, 1, Q("0.85 in")))
sketch4.addConstraint(Sketcher.Constraint("DistanceX", 1, 2, 1, 1, Q("0.125 in")))
sketch4.addConstraint(Sketcher.Constraint("DistanceY", 36, 3, 38, 3, Q("65 mm")))
sketch4.addConstraint(Sketcher.Constraint("DistanceX", 21, 2, 21, 1, Q("36.205077 mm")))
sketch4.addConstraint(Sketcher.Constraint("DistanceY", 36, 3, -1, 1, Q("94.419749 mm")))
sketch4.addConstraint(Sketcher.Constraint("DistanceY", 37, 3, -1, 1, Q("94.292079 mm")))
sketch4.addConstraint(Sketcher.Constraint("DistanceX", 0, 2, 36, 3, Q("78.95214 mm")))
sketch4.addConstraint(Sketcher.Constraint("DistanceX", 36, 3, -1, 1, Q("122.280597 mm")))
sketch4.addConstraint(Sketcher.Constraint("DistanceX", 37, 3, -1, 1, Q("49.671313 mm")))
sketch4.setExpression("Constraints[106]", "Params.sketch4_diameter")
sketch4.setExpression("Constraints[107]", "Params.sketch4_width")
sketch4.setExpression("Constraints[108]", "Params.sketch4_height")
sketch4.setExpression("Constraints[109]", "Params.sketch4_width2")
pad4 = body4.newObject("PartDesign::Pad", "Pad003")
pad4.Profile = sketch4
pad4.setExpression("Length", "Params.pad4_length")
pad4.Reversed = True
body5 = doc.addObject("PartDesign::Body", "Body004")

# Sketch on XY plane
sketch5 = body5.newObject("Sketcher::SketchObject", "Sketch004")
sketch5.AttachmentSupport = (doc.getObject("XY_Plane004"), [""])
sketch5.MapMode = "FlatFace"
add_polygon(sketch5, [(-262.8, 105.9), (-281.3, 105.9), (-281.3, 4.3), (-262.8, 4.3), (-262.8, 1.1), (-226, 1.1), (-226, 4.3), (-155.5, 4.3), (-155.5, 44.3), (-152.3, 44.3), (-152.3, 65.9), (-155.5, 65.9), (-155.5, 105.9), (-226, 105.9), (-226, 109.1), (-262.8, 109.1)])  # lines 0-15
add_polygon(sketch5, [(-173.2, 17.6), (-179.6, 17.6), (-179.6, 22.7), (-173.2, 22.7)])  # lines 16-19
add_polygon(sketch5, [(-173.2, 87.5), (-179.6, 87.5), (-179.6, 92.6), (-173.2, 92.6)])  # lines 20-23
sketch5.addConstraint(Sketcher.Constraint("Horizontal", 0))
sketch5.addConstraint(Sketcher.Constraint("Vertical", 1))
sketch5.addConstraint(Sketcher.Constraint("Horizontal", 2))
sketch5.addConstraint(Sketcher.Constraint("Vertical", 3))
sketch5.addConstraint(Sketcher.Constraint("Horizontal", 4))
sketch5.addConstraint(Sketcher.Constraint("Vertical", 5))
sketch5.addConstraint(Sketcher.Constraint("Horizontal", 6))
sketch5.addConstraint(Sketcher.Constraint("Vertical", 7))
sketch5.addConstraint(Sketcher.Constraint("Horizontal", 8))
sketch5.addConstraint(Sketcher.Constraint("Vertical", 9))
sketch5.addConstraint(Sketcher.Constraint("Horizontal", 10))
sketch5.addConstraint(Sketcher.Constraint("Vertical", 11))
sketch5.addConstraint(Sketcher.Constraint("Horizontal", 12))
sketch5.addConstraint(Sketcher.Constraint("Vertical", 13))
sketch5.addConstraint(Sketcher.Constraint("Horizontal", 14))
sketch5.addConstraint(Sketcher.Constraint("Vertical", 15))
sketch5.addConstraint(Sketcher.Constraint("Horizontal", 16))
sketch5.addConstraint(Sketcher.Constraint("Vertical", 17))
sketch5.addConstraint(Sketcher.Constraint("Horizontal", 18))
sketch5.addConstraint(Sketcher.Constraint("Vertical", 19))
sketch5.addConstraint(Sketcher.Constraint("Horizontal", 20))
sketch5.addConstraint(Sketcher.Constraint("Vertical", 21))
sketch5.addConstraint(Sketcher.Constraint("Horizontal", 22))
sketch5.addConstraint(Sketcher.Constraint("Vertical", 23))
sketch5.addConstraint(Sketcher.Constraint("Horizontal", 2, 2, 5, 2))
sketch5.addConstraint(Sketcher.Constraint("Horizontal", 0, 2, 11, 2))
sketch5.addConstraint(Sketcher.Constraint("Vertical", 7, 2, 10, 2))
sketch5.addConstraint(Sketcher.Constraint("Vertical", 5, 2, 12, 2))
sketch5.addConstraint(Sketcher.Constraint("Vertical", 3, 2, 14, 2))
sketch5.addConstraint(Sketcher.Constraint("Vertical", 17, 2, 20, 2))
sketch5.addConstraint(Sketcher.Constraint("Vertical", 19, 2, 22, 2))
sketch5.addConstraint(Sketcher.Constraint("Equal", 10, 3))
sketch5.addConstraint(Sketcher.Constraint("Equal", 7, 11))
sketch5.addConstraint(Sketcher.Constraint("Equal", 5, 13))
sketch5.addConstraint(Sketcher.Constraint("Equal", 19, 21))
sketch5.addConstraint(Sketcher.Constraint("DistanceY", 1, 2, 1, 1, Q("4 in")))
sketch5.addConstraint(Sketcher.Constraint("DistanceY", 17, 1, 17, 2, Q("0.2 in")))
sketch5.addConstraint(Sketcher.Constraint("DistanceX", 4, 1, 4, 2, Q("1.45 in")))
sketch5.addConstraint(Sketcher.Constraint("DistanceX", 16, 2, 16, 1, Q("0.25 in")))
sketch5.addConstraint(Sketcher.Constraint("DistanceY", 9, 1, 9, 2, Q("0.85 in")))
sketch5.addConstraint(Sketcher.Constraint("DistanceY", 4, 2, 7, 2, Q("1.7 in")))
sketch5.addConstraint(Sketcher.Constraint("DistanceX", 5, 2, 8, 2, Q("2.9 in")))
sketch5.addConstraint(Sketcher.Constraint("DistanceY", 17, 2, 10, 2, Q("1.7 in")))
sketch5.addConstraint(Sketcher.Constraint("DistanceY", 7, 2, 20, 2, Q("1.7 in")))
sketch5.addConstraint(Sketcher.Constraint("DistanceX", 0, 2, 0, 1, Q("0.725 in")))
sketch5.addConstraint(Sketcher.Constraint("DistanceX", 16, 2, -1, 1, Q("179.572199 mm")))
sketch5.addConstraint(Sketcher.Constraint("DistanceX", 16, 2, 6, 2, Q("24.048231 mm")))
sketch5.addConstraint(Sketcher.Constraint("DistanceY", -1, 1, 0, 2, Q("105.902926 mm")))
sketch5.setExpression("Constraints[59]", "Params.sketch5_height")
sketch5.setExpression("Constraints[60]", "Params.sketch5_height2")
sketch5.setExpression("Constraints[61]", "Params.sketch5_width")
sketch5.setExpression("Constraints[62]", "Params.sketch5_width2")
sketch5.setExpression("Constraints[63]", "Params.sketch5_height3")
pad5 = body5.newObject("PartDesign::Pad", "Pad004")
pad5.Profile = sketch5
pad5.setExpression("Length", "Params.pad5_length")
pad5.Reversed = True
body6 = doc.addObject("PartDesign::Body", "Body005")

# Sketch on XY plane
sketch6 = body6.newObject("Sketcher::SketchObject", "Sketch005")
sketch6.AttachmentSupport = (doc.getObject("XY_Plane005"), [""])
sketch6.MapMode = "FlatFace"
add_polygon(sketch6, [(-232.7, -58.4), (-232.7, -35.4), (-235.9, -35.4), (-235.9, -17), (-266.4, -17), (-266.4, -13.8), (-296.9, -13.8), (-296.9, -17), (-327.3, -17), (-327.3, -35.4), (-330.5, -35.4), (-330.5, -57), (-327.3, -57), (-327.3, -78.6), (-330.5, -78.6), (-330.5, -100.2), (-327.3, -100.2), (-327.3, -118.6), (-296.9, -118.6), (-296.9, -121.8), (-266.4, -121.8), (-266.4, -118.6), (-235.9, -118.6), (-235.9, -100.2), (-232.7, -100.2), (-232.7, -78.6), (-236, -78.6), (-236, -87.6), (-248.7, -87.6), (-248.7, -68.5), (-236, -68.5), (-236, -58.4)])  # lines 0-31
add_polygon(sketch6, [(-280, -78.6), (-283.2, -78.6), (-283.2, -57), (-280, -57)])  # lines 32-35
sketch6.addConstraint(Sketcher.Constraint("Vertical", 0))
sketch6.addConstraint(Sketcher.Constraint("Horizontal", 1))
sketch6.addConstraint(Sketcher.Constraint("Vertical", 2))
sketch6.addConstraint(Sketcher.Constraint("Horizontal", 3))
sketch6.addConstraint(Sketcher.Constraint("Vertical", 4))
sketch6.addConstraint(Sketcher.Constraint("Horizontal", 5))
sketch6.addConstraint(Sketcher.Constraint("Vertical", 6))
sketch6.addConstraint(Sketcher.Constraint("Horizontal", 7))
sketch6.addConstraint(Sketcher.Constraint("Vertical", 8))
sketch6.addConstraint(Sketcher.Constraint("Horizontal", 9))
sketch6.addConstraint(Sketcher.Constraint("Vertical", 10))
sketch6.addConstraint(Sketcher.Constraint("Horizontal", 11))
sketch6.addConstraint(Sketcher.Constraint("Vertical", 12))
sketch6.addConstraint(Sketcher.Constraint("Horizontal", 13))
sketch6.addConstraint(Sketcher.Constraint("Vertical", 14))
sketch6.addConstraint(Sketcher.Constraint("Horizontal", 15))
sketch6.addConstraint(Sketcher.Constraint("Vertical", 16))
sketch6.addConstraint(Sketcher.Constraint("Horizontal", 17))
sketch6.addConstraint(Sketcher.Constraint("Vertical", 18))
sketch6.addConstraint(Sketcher.Constraint("Horizontal", 19))
sketch6.addConstraint(Sketcher.Constraint("Vertical", 20))
sketch6.addConstraint(Sketcher.Constraint("Horizontal", 21))
sketch6.addConstraint(Sketcher.Constraint("Vertical", 22))
sketch6.addConstraint(Sketcher.Constraint("Horizontal", 23))
sketch6.addConstraint(Sketcher.Constraint("Vertical", 24))
sketch6.addConstraint(Sketcher.Constraint("Horizontal", 25))
sketch6.addConstraint(Sketcher.Constraint("Vertical", 26))
sketch6.addConstraint(Sketcher.Constraint("Horizontal", 27))
sketch6.addConstraint(Sketcher.Constraint("Vertical", 28))
sketch6.addConstraint(Sketcher.Constraint("Horizontal", 29))
sketch6.addConstraint(Sketcher.Constraint("Vertical", 30))
sketch6.addConstraint(Sketcher.Constraint("Horizontal", 31))
sketch6.addConstraint(Sketcher.Constraint("Horizontal", 32))
sketch6.addConstraint(Sketcher.Constraint("Vertical", 33))
sketch6.addConstraint(Sketcher.Constraint("Horizontal", 34))
sketch6.addConstraint(Sketcher.Constraint("Vertical", 35))
sketch6.addConstraint(Sketcher.Constraint("Horizontal", 3, 2, 6, 2))
sketch6.addConstraint(Sketcher.Constraint("Horizontal", 1, 2, 8, 2))
sketch6.addConstraint(Sketcher.Constraint("Horizontal", 17, 2, 20, 2))
sketch6.addConstraint(Sketcher.Constraint("Horizontal", 15, 2, 22, 2))
sketch6.addConstraint(Sketcher.Constraint("Horizontal", 13, 2, 24, 2))
sketch6.addConstraint(Sketcher.Constraint("Horizontal", 25, 2, 32, 2))
sketch6.addConstraint(Sketcher.Constraint("Horizontal", 11, 2, 33, 2))
sketch6.addConstraint(Sketcher.Constraint("Vertical", 8, 2, 11, 2))
sketch6.addConstraint(Sketcher.Constraint("Vertical", 10, 2, 13, 2))
sketch6.addConstraint(Sketcher.Constraint("Vertical", 12, 2, 15, 2))
sketch6.addConstraint(Sketcher.Constraint("Vertical", 6, 2, 17, 2))
sketch6.addConstraint(Sketcher.Constraint("Vertical", 4, 2, 19, 2))
sketch6.addConstraint(Sketcher.Constraint("Vertical", 2, 2, 21, 2))
sketch6.addConstraint(Sketcher.Constraint("Vertical", 0, 2, 23, 2))
sketch6.addConstraint(Sketcher.Constraint("Vertical", 26, 2, 29, 2))
sketch6.addConstraint(Sketcher.Constraint("Equal", 3, 5))
sketch6.addConstraint(Sketcher.Constraint("Equal", 5, 7))
sketch6.addConstraint(Sketcher.Constraint("Equal", 1, 9))
sketch6.addConstraint(Sketcher.Constraint("Equal", 23, 32))
sketch6.addConstraint(Sketcher.Constraint("Equal", 34, 4))
sketch6.addConstraint(Sketcher.Constraint("Equal", 10, 12))
sketch6.addConstraint(Sketcher.Constraint("Equal", 12, 14))
sketch6.addConstraint(Sketcher.Constraint("Equal", 8, 16))
sketch6.addConstraint(Sketcher.Constraint("Equal", 6, 18))
sketch6.addConstraint(Sketcher.Constraint("DistanceX", 3, 2, 3, 1, Q("1.2 in")))
sketch6.addConstraint(Sketcher.Constraint("DistanceX", 27, 2, 27, 1, Q("0.5 in")))
sketch6.addConstraint(Sketcher.Constraint("DistanceY", 10, 2, 10, 1, Q("0.85 in")))
sketch6.addConstraint(Sketcher.Constraint("DistanceY", 28, 1, 28, 2, Q("0.75 in")))
sketch6.addConstraint(Sketcher.Constraint("DistanceY", 10, 2, 5, 2, Q("1.7 in")))
sketch6.addConstraint(Sketcher.Constraint("DistanceX", 1, 2, 1, 1, Q("0.125 in")))
sketch6.addConstraint(Sketcher.Constraint("DistanceX", 17, 2, 32, 2, Q("0.5375 in")))
sketch6.addConstraint(Sketcher.Constraint("DistanceX", 25, 2, 25, 1, Q("3.275075 mm")))
sketch6.addConstraint(Sketcher.Constraint("DistanceY", 0, 1, 0, 2, Q("23.040134 mm")))
sketch6.addConstraint(Sketcher.Constraint("DistanceY", 26, 2, 26, 1, Q("8.980067 mm")))
sketch6.addConstraint(Sketcher.Constraint("DistanceY", 0, 2, -1, 1, Q("35.396019 mm")))
sketch6.addConstraint(Sketcher.Constraint("DistanceX", 25, 2, -1, 1, Q("235.99588 mm")))
sketch6.setExpression("Constraints[96]", "Params.sketch6_width")
sketch6.setExpression("Constraints[97]", "Params.sketch6_width2")
sketch6.setExpression("Constraints[98]", "Params.sketch6_height")
sketch6.setExpression("Constraints[99]", "Params.sketch6_height2")
sketch6.setExpression("Constraints[101]", "Params.sketch6_width3")
pad6 = body6.newObject("PartDesign::Pad", "Pad005")
pad6.Profile = sketch6
pad6.setExpression("Length", "Params.pad6_length")
pad6.Reversed = True

doc.recompute()
